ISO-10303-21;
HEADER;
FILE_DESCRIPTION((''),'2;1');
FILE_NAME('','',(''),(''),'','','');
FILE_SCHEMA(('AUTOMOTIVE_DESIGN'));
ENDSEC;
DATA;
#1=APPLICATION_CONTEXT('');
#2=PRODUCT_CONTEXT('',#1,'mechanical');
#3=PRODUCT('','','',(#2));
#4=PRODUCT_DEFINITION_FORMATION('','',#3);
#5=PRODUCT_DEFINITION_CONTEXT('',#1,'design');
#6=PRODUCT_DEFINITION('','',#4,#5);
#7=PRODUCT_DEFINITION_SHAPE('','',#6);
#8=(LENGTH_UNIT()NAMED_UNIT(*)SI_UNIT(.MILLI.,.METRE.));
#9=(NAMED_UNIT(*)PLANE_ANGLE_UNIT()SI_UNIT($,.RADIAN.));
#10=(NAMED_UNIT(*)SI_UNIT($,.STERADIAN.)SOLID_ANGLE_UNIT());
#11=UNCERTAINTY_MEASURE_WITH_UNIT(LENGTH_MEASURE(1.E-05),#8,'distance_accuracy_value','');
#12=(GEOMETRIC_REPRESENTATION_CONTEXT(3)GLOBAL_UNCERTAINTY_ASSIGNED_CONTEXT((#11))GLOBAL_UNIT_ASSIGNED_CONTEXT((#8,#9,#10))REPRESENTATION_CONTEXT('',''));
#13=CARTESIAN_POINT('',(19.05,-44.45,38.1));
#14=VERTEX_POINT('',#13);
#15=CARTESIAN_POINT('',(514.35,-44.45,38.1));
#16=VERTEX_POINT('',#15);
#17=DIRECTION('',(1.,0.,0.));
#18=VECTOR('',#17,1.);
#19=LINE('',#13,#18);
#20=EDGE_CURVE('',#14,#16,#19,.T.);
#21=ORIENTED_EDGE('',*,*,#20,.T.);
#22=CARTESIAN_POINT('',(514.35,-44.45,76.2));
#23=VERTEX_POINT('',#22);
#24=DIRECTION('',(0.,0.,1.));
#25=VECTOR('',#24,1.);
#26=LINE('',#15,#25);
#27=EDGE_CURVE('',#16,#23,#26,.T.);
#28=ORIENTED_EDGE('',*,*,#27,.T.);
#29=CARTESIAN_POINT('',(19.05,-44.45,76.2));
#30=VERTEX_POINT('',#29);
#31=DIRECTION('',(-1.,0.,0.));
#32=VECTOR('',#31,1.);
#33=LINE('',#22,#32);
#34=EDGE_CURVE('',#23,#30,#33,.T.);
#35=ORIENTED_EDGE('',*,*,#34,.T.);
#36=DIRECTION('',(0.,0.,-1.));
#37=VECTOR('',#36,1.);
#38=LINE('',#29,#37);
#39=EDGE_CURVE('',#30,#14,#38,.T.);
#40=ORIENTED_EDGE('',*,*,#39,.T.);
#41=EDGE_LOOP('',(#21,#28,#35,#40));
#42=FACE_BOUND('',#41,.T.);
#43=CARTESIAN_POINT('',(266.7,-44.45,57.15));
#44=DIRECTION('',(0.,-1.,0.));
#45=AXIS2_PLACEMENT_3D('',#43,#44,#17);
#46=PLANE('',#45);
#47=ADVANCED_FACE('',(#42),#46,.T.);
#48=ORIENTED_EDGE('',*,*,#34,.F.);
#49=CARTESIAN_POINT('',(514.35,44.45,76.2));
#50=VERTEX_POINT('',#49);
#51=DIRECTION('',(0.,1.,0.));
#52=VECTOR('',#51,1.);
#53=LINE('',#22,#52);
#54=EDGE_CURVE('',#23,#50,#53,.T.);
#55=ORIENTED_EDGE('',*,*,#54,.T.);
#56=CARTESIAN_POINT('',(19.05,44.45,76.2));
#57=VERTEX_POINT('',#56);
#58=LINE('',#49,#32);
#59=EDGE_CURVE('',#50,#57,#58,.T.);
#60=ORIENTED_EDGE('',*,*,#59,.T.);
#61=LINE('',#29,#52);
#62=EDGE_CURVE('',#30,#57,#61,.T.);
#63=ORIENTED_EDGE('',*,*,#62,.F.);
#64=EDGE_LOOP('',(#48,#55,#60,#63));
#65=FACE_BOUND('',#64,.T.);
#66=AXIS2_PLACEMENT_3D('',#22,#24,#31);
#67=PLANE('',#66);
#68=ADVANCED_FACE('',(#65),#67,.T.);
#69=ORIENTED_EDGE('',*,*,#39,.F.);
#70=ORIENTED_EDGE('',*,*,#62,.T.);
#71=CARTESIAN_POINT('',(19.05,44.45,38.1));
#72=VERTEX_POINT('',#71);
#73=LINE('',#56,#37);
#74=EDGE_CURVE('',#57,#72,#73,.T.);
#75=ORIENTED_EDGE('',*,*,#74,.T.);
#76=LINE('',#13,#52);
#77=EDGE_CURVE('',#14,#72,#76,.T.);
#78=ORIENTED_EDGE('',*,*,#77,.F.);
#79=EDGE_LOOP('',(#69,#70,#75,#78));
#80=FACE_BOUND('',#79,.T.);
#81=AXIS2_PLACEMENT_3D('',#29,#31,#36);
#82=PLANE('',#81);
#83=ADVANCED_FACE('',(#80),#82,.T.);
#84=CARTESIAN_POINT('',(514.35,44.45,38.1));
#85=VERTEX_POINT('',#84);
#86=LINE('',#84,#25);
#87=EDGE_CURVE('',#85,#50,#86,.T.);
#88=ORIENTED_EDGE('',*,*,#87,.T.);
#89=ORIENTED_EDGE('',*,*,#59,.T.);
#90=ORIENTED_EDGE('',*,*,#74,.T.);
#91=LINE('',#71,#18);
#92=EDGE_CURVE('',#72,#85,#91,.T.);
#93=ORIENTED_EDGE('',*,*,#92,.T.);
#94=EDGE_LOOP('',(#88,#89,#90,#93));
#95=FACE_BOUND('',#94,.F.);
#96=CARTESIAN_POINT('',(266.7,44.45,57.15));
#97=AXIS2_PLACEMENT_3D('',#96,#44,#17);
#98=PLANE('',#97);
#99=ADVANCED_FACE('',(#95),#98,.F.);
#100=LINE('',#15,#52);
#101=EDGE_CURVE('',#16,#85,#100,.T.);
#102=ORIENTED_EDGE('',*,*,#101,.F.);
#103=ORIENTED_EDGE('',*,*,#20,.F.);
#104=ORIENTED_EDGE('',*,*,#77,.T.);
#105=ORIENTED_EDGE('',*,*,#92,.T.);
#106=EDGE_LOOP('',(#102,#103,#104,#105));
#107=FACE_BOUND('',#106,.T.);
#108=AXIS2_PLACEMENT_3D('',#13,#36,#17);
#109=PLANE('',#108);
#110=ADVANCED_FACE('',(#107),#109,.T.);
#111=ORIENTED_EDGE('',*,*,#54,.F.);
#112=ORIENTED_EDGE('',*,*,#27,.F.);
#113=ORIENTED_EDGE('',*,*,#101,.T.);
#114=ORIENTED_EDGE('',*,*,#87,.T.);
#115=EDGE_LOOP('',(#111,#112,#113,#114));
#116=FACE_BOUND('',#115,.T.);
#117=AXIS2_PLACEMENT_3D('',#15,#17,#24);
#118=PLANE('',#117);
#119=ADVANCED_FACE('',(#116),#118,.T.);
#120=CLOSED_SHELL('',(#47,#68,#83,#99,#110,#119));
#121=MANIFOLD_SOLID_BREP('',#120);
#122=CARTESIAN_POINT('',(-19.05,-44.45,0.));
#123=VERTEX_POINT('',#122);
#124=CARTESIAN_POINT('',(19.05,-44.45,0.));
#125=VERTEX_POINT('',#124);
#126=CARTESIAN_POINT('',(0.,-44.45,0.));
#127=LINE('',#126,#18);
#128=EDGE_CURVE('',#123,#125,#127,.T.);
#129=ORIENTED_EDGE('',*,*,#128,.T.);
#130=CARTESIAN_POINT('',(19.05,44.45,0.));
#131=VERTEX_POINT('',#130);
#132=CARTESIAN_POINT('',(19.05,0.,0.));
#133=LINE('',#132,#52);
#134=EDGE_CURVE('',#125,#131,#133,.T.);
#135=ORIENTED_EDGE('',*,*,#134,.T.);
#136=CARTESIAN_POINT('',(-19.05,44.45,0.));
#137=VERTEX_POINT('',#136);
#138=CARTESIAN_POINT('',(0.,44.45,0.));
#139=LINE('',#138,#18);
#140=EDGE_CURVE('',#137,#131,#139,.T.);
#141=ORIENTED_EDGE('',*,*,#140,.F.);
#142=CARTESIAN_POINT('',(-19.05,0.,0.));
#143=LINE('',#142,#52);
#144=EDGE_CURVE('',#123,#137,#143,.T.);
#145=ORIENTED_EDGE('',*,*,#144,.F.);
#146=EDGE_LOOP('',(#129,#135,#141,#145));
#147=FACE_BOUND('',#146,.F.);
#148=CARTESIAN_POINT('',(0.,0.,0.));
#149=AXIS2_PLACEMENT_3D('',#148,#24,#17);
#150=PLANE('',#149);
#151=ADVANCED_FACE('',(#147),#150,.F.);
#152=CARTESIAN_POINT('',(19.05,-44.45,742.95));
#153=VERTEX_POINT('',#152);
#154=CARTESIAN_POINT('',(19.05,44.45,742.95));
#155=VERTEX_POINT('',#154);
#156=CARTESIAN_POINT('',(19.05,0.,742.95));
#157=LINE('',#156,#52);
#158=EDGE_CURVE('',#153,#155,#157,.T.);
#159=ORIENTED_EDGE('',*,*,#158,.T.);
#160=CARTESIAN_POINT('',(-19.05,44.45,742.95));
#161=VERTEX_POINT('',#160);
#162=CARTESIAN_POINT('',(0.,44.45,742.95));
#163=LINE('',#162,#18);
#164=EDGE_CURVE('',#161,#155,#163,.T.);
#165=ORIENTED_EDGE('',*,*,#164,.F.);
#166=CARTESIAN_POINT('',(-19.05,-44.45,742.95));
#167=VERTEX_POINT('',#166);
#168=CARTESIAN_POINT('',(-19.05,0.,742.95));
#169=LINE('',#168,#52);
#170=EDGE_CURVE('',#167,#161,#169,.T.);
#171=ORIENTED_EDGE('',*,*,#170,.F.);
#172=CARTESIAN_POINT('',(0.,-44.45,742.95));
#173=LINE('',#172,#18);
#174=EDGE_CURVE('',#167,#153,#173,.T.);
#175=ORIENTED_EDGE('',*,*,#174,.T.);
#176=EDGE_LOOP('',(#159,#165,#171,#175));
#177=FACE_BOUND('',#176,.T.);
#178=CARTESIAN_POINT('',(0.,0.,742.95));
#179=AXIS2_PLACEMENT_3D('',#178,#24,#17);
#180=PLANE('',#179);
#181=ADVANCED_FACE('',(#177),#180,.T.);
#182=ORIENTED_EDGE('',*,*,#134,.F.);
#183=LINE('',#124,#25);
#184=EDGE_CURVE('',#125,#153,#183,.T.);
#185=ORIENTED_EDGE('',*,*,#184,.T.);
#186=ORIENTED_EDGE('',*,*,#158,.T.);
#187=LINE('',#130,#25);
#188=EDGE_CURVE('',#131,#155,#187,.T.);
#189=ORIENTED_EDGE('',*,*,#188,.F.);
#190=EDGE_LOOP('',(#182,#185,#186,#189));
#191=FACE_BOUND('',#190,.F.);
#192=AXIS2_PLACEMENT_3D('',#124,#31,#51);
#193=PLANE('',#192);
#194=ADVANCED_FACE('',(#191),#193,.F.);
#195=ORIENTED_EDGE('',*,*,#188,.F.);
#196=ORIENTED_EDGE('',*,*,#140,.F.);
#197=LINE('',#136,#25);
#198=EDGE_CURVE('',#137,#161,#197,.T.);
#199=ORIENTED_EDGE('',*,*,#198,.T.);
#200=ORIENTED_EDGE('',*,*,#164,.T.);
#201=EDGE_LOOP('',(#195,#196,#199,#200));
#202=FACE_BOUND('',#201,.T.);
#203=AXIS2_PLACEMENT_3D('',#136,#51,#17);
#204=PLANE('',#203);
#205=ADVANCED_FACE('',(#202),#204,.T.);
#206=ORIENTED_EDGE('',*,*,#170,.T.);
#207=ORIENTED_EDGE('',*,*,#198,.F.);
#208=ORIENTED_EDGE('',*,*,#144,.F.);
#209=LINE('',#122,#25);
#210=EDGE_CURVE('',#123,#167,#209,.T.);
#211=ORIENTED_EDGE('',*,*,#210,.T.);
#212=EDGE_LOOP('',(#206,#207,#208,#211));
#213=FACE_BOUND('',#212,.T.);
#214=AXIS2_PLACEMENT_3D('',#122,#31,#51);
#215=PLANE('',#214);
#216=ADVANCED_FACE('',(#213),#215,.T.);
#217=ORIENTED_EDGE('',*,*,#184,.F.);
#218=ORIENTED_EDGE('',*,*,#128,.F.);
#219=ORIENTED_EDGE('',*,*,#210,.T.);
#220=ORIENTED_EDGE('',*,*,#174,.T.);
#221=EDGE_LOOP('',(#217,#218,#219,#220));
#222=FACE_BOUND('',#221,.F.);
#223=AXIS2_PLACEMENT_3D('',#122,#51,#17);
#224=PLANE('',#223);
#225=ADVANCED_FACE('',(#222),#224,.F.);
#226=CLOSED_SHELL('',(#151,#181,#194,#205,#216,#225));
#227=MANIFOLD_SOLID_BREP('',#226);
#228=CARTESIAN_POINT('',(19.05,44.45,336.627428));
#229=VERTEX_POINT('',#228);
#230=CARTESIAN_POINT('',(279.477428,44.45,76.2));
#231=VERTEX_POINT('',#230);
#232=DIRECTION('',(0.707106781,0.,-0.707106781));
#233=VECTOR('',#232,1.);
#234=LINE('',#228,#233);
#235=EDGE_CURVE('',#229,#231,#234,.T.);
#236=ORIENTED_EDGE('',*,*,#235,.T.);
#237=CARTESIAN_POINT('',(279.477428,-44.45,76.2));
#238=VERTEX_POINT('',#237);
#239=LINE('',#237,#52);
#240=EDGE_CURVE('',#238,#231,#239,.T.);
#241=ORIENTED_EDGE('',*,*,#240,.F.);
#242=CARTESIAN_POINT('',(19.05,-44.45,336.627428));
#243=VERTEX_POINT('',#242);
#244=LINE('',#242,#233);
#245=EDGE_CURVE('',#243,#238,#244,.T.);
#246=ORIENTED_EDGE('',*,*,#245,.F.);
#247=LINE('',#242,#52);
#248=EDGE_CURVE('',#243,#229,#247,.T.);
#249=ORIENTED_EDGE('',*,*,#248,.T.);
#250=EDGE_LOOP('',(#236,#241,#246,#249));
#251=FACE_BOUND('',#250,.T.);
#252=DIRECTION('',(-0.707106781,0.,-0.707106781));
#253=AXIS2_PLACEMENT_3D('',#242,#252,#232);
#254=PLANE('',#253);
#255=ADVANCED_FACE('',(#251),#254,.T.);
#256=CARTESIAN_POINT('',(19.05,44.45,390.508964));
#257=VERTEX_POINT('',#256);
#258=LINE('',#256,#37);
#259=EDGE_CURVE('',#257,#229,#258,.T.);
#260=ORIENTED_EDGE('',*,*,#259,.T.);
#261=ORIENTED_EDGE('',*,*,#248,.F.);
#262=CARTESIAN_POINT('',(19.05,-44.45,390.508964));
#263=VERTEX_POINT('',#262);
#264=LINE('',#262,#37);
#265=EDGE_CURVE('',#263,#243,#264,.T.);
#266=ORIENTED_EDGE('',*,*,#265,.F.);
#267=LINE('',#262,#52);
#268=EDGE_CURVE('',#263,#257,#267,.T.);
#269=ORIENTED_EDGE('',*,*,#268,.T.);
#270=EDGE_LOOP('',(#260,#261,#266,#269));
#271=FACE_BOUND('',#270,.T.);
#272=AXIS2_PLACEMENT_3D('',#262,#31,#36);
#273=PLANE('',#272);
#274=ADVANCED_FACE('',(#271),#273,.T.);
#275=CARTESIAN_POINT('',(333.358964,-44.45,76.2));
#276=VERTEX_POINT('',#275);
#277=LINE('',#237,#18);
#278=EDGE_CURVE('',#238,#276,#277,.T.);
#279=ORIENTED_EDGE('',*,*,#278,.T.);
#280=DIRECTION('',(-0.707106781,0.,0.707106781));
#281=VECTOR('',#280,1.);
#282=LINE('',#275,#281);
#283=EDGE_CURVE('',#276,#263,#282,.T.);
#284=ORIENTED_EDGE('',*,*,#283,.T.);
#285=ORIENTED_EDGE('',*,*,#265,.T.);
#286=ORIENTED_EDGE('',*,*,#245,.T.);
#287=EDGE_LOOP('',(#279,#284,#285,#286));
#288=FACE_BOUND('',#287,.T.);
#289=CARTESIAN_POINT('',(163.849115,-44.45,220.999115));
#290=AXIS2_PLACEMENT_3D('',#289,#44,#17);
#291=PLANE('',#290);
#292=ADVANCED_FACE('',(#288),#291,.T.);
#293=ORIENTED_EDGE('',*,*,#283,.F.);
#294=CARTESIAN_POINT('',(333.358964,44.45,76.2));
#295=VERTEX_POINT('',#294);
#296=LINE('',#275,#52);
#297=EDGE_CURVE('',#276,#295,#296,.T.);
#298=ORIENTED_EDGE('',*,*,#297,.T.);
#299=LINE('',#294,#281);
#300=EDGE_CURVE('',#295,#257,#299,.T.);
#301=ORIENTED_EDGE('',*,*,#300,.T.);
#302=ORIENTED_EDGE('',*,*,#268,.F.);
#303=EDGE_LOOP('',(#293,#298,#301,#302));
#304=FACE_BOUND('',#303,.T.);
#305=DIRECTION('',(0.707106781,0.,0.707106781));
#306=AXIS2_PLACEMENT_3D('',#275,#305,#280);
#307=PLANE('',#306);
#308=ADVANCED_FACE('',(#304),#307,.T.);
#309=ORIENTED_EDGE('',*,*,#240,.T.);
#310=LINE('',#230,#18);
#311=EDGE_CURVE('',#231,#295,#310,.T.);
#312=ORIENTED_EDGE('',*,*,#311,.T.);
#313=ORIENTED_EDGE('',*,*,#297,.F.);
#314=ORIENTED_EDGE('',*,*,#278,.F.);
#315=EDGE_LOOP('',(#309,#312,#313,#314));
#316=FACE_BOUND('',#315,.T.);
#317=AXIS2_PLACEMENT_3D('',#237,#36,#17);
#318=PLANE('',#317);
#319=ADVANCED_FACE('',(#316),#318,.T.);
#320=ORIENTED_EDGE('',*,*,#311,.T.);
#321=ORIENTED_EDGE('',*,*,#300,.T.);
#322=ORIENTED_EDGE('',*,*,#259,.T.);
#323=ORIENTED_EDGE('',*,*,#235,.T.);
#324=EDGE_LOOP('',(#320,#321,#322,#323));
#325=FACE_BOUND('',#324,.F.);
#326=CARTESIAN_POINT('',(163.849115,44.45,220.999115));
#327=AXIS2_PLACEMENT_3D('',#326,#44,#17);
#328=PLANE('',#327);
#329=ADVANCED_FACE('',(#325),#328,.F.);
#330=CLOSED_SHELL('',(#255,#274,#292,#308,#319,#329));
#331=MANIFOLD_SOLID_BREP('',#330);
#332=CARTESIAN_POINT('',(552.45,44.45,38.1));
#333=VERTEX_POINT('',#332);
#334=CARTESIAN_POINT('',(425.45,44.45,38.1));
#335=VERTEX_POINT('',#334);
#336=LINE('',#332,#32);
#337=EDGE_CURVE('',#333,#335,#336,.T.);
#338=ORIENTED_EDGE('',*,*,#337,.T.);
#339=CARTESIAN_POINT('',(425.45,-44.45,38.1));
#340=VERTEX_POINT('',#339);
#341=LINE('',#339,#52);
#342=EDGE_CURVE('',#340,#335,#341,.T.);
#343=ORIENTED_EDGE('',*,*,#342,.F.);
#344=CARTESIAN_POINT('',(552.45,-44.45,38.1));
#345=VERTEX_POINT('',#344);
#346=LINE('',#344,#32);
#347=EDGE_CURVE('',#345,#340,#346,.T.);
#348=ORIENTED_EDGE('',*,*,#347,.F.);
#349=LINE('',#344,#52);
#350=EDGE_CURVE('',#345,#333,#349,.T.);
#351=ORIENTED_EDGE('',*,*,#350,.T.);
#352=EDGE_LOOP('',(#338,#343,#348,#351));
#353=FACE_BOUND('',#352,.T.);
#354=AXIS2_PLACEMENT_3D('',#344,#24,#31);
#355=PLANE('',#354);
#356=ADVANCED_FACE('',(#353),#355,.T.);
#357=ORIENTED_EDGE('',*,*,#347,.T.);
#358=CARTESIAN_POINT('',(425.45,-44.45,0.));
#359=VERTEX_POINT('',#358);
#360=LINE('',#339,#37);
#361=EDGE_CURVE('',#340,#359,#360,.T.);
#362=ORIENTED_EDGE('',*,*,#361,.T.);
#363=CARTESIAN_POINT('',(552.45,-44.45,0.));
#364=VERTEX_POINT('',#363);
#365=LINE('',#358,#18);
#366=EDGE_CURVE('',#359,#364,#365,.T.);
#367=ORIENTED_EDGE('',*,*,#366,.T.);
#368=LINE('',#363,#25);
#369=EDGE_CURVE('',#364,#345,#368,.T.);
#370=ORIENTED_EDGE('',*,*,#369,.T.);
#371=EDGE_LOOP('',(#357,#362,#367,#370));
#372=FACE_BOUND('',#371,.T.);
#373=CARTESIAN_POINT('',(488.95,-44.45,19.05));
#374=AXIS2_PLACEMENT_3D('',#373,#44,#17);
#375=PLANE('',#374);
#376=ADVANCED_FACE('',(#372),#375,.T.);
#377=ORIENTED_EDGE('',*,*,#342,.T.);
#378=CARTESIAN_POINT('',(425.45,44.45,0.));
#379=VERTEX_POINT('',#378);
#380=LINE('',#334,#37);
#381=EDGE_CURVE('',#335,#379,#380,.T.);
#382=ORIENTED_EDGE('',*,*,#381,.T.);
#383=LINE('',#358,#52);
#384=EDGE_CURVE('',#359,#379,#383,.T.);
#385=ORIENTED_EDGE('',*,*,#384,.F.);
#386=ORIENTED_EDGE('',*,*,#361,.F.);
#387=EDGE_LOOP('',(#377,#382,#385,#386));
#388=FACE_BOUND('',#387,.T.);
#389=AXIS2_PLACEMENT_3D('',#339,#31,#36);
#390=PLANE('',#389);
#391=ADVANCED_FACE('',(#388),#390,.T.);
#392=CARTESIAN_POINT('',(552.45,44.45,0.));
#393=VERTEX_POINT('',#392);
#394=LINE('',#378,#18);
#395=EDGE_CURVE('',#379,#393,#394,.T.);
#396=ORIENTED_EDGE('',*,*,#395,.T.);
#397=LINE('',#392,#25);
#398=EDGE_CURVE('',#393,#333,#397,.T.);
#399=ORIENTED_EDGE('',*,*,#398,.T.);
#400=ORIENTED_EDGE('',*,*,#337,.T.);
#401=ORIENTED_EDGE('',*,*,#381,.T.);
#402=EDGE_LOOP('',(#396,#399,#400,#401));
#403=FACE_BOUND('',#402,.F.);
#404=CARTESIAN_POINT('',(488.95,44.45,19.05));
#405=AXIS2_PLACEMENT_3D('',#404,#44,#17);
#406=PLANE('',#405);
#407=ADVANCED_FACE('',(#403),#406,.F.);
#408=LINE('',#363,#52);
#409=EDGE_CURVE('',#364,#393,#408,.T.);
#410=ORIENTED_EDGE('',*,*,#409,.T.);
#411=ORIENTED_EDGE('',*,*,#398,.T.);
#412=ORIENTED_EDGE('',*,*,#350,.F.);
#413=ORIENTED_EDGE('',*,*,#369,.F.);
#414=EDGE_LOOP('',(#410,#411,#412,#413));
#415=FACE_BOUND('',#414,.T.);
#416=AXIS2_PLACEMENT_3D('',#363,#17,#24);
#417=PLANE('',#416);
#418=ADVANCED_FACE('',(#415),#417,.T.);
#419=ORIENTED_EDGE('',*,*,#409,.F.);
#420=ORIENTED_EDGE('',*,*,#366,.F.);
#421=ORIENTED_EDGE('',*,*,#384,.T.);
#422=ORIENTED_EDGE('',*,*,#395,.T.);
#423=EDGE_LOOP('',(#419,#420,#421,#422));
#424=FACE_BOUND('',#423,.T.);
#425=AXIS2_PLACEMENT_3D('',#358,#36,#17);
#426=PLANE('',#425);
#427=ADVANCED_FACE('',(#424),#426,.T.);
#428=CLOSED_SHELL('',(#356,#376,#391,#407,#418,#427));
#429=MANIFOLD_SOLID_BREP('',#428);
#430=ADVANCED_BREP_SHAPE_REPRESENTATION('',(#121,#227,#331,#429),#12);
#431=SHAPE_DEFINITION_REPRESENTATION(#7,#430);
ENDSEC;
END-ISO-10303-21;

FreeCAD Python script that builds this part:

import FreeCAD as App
import Part
import Sketcher
from FreeCAD import Vector
Q = App.Units.Quantity


def add_polygon(sketch, points):
    """Adds a closed chain of lines whose ends are joined by coincident constraints."""
    first, n = sketch.GeometryCount, len(points)
    for a, b in zip(points, points[1:] + points[:1]):
        sketch.addGeometry(Part.LineSegment(App.Vector(*a, 0), App.Vector(*b, 0)), False)
    for i in range(n):
        sketch.addConstraint(Sketcher.Constraint("Coincident", first + i, 2, first + (i + 1) % n, 1))

doc = App.newDocument("Part")
body = doc.addObject("PartDesign::Body", "Body")

sketch1 = doc.addObject("Sketcher::SketchObject", "Sketch")
body.addObject(sketch1)
sketch1.AttachmentSupport = (doc.XY_Plane, [""])
sketch1.MapMode = "FlatFace"
add_polygon(sketch1, [(-19.05, 44.45), (-19.05, -44.45), (19.05, -44.45), (19.05, 44.45)])
sketch1.addConstraint([
    Sketcher.Constraint("Vertical", 0),
    Sketcher.Constraint("Horizontal", 1),
    Sketcher.Constraint("Vertical", 2),
    Sketcher.Constraint("Horizontal", 3),
    Sketcher.Constraint("Symmetric", 0, 2, 2, 2, -1, 1),
    Sketcher.Constraint("DistanceX", 1, 1, 1, 2, Q("1.5 in")),
    Sketcher.Constraint("DistanceY", 0, 2, 0, 1, Q("3.5 in")),
])
pad1 = doc.addObject("PartDesign::Pad", "Pad")
body.addObject(pad1)
pad1.Profile = sketch1
pad1.Length = Q("29.25 in")
body2 = doc.addObject("PartDesign::Body", "Body001")

sketch2 = doc.addObject("Sketcher::SketchObject", "Sketch001")
body2.addObject(sketch2)
sketch2.AttachmentSupport = (doc.getObject("XZ_Plane001"), [""])
sketch2.MapMode = "FlatFace"
sketch2.AttachmentOffset = App.Placement(Vector(0, 0, 1.75 * 25.4), App.Rotation())
add_polygon(sketch2, [(19.05, 76.2), (19.05, 38.1), (514.35, 38.1), (514.35, 76.2)])
sketch2.addConstraint([
    Sketcher.Constraint("Vertical", 0),
    Sketcher.Constraint("Horizontal", 1),
    Sketcher.Constraint("Vertical", 2),
    Sketcher.Constraint("Horizontal", 3),
    Sketcher.Constraint("DistanceX", 1, 1, 1, 2, Q("19.5 in")),
    Sketcher.Constraint("DistanceY", 0, 2, 0, 1, Q("1.5 in")),
    Sketcher.Constraint("DistanceY", -1, 1, 2, 2, Q("3 in")),
    Sketcher.Constraint("DistanceX", -1, 1, 0, 2, Q("0.75 in")),
])
pad2 = doc.addObject("PartDesign::Pad", "Pad001")
body2.addObject(pad2)
pad2.Profile = sketch2
pad2.Length = Q("3.5 in")
pad2.Reversed = True
body3 = doc.addObject("PartDesign::Body", "Body002")

sketch3 = doc.addObject("Sketcher::SketchObject", "Sketch002")
body3.addObject(sketch3)
sketch3.AttachmentSupport = (doc.getObject("XZ_Plane002"), [""])
sketch3.MapMode = "FlatFace"
sketch3.AttachmentOffset = App.Placement(Vector(0, 0, 1.75 * 25.4), App.Rotation())
add_polygon(sketch3, [(19.05, 336.627428), (279.477428, 76.2), (333.358964, 76.2), (19.05, 390.508964)])
sketch3.addConstraint([
    Sketcher.Constraint("Horizontal", 1),
    Sketcher.Constraint("Vertical", 3),
    Sketcher.Constraint("Parallel", 0, 2),
    Sketcher.Constraint("Equal", 1, 3),
    Sketcher.Constraint("DistanceY", -1, 1, 0, 2, Q("3 in")),
    Sketcher.Constraint("Distance", 0, Q("14.5 in")),
    Sketcher.Constraint("Distance", 2, Q("17.5 in")),
    Sketcher.Constraint("DistanceX", -1, 1, 2, 2, Q("0.75 in")),
])
pad3 = doc.addObject("PartDesign::Pad", "Pad002")
body3.addObject(pad3)
pad3.Profile = sketch3
pad3.Length = Q("3.5 in")
pad3.Reversed = True
body4 = doc.addObject("PartDesign::Body", "Body003")

sketch4 = doc.addObject("Sketcher::SketchObject", "Sketch003")
body4.addObject(sketch4)
sketch4.AttachmentSupport = (doc.getObject("XZ_Plane003"), [""])
sketch4.MapMode = "FlatFace"
sketch4.AttachmentOffset = App.Placement(Vector(0, 0, 1.75 * 25.4), App.Rotation())
add_polygon(sketch4, [(425.45, 38.1), (425.45, 0), (552.45, 0), (552.45, 38.1)])
sketch4.addConstraint([
    Sketcher.Constraint("Vertical", 0),
    Sketcher.Constraint("Horizontal", 1),
    Sketcher.Constraint("Vertical", 2),
    Sketcher.Constraint("Horizontal", 3),
    Sketcher.Constraint("PointOnObject", 0, 2, -1),
    Sketcher.Constraint("DistanceX", 1, 1, 1, 2, Q("5 in")),
    Sketcher.Constraint("DistanceY", 0, 2, 0, 1, Q("1.5 in")),
    Sketcher.Constraint("DistanceX", -1, 1, 0, 2, Q("16.75 in")),
])
pad4 = doc.addObject("PartDesign::Pad", "Pad003")
body4.addObject(pad4)
pad4.Profile = sketch4
pad4.Length = Q("3.5 in")
pad4.Reversed = True

doc.recompute()
